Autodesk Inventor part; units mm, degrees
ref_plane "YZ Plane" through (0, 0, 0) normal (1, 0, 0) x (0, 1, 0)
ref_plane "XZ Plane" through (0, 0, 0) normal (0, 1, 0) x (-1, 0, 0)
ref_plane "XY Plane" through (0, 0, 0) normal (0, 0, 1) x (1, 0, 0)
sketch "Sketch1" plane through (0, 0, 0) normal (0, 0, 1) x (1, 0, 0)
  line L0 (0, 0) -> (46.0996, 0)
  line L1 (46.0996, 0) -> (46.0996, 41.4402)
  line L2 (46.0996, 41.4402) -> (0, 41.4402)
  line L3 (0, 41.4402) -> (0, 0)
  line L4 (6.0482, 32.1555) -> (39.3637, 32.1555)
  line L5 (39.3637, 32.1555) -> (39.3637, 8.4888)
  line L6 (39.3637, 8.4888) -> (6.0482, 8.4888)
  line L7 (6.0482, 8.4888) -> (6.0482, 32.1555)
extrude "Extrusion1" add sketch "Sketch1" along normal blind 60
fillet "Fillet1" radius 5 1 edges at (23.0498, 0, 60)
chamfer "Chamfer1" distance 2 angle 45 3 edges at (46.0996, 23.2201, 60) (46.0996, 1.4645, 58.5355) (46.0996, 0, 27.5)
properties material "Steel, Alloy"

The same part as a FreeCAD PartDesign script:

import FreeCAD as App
import Part
import Sketcher
from FreeCAD import Vector


def edges_at(feature, points):
    """Names of the edges that pass closest to the given points."""
    edges = feature.Shape.Edges
    near = lambda p: min(range(len(edges)), key=lambda i: edges[i].distToShape(Part.Vertex(*p))[0])
    return sorted({f"Edge{near(p) + 1}" for p in points})

doc = App.newDocument("Part")
body = doc.addObject("PartDesign::Body", "Body")

sketch1 = body.newObject("Sketcher::SketchObject", "Sketch")
sketch1.AttachmentSupport = (doc.getObject("XY_Plane"), [""])
sketch1.MapMode = "FlatFace"
sketch1.addGeometry([
    Part.LineSegment(Vector(0, 41, 0), Vector(0, 0, 0)),
    Part.LineSegment(Vector(0, 0, 0), Vector(46, 0, 0)),
    Part.LineSegment(Vector(46, 0, 0), Vector(46, 41, 0)),
    Part.LineSegment(Vector(46, 41, 0), Vector(0, 41, 0)),
    Part.LineSegment(Vector(6, 8, 0), Vector(6, 32, 0)),
    Part.LineSegment(Vector(6, 32, 0), Vector(39, 32, 0)),
    Part.LineSegment(Vector(39, 32, 0), Vector(39, 8, 0)),
    Part.LineSegment(Vector(39, 8, 0), Vector(6, 8, 0)),
], False)
sketch1.addConstraint([
    Sketcher.Constraint("Coincident", 0, 2, 1, 1),
    Sketcher.Constraint("Coincident", 1, 2, 2, 1),
    Sketcher.Constraint("Coincident", 2, 2, 3, 1),
    Sketcher.Constraint("Coincident", 3, 2, 0, 1),
    Sketcher.Constraint("Coincident", 4, 2, 5, 1),
    Sketcher.Constraint("Coincident", 5, 2, 6, 1),
    Sketcher.Constraint("Coincident", 6, 2, 7, 1),
    Sketcher.Constraint("Coincident", 7, 2, 4, 1),
    Sketcher.Constraint("Vertical", 0),
    Sketcher.Constraint("Horizontal", 1),
    Sketcher.Constraint("Vertical", 2),
    Sketcher.Constraint("Horizontal", 3),
    Sketcher.Constraint("Vertical", 4),
    Sketcher.Constraint("Horizontal", 5),
    Sketcher.Constraint("Vertical", 6),
    Sketcher.Constraint("Horizontal", 7),
    Sketcher.Constraint("Coincident", 0, 2, -1, 1),
    Sketcher.Constraint("DistanceX", 1, 1, 1, 2, 46.0996),
    Sketcher.Constraint("DistanceX", 5, 1, 5, 2, 33.3155),
    Sketcher.Constraint("DistanceY", 0, 2, 0, 1, 41.4402),
    Sketcher.Constraint("DistanceY", 4, 1, 4, 2, 23.6667),
    Sketcher.Constraint("DistanceX", 5, 2, 2, 2, 6.736),
    Sketcher.Constraint("DistanceY", -1, 1, 4, 2, 32.1555),
])
pad1 = body.newObject("PartDesign::Pad", "Pad")
pad1.Profile = sketch1
pad1.Length = 60
doc.recompute()

fillet = body.newObject("PartDesign::Fillet", "Fillet")
fillet.Base = (pad1, edges_at(pad1, [(23.05, 0, 60)]))
fillet.Radius = 5
doc.recompute()

chamfer = body.newObject("PartDesign::Chamfer", "Chamfer")
chamfer.Base = (fillet, edges_at(fillet, [(46.1, 23.22, 60), (46.1, 1.464, 58.535), (46.1, 0, 27.5)]))
chamfer.Size = 2

doc.recompute()
